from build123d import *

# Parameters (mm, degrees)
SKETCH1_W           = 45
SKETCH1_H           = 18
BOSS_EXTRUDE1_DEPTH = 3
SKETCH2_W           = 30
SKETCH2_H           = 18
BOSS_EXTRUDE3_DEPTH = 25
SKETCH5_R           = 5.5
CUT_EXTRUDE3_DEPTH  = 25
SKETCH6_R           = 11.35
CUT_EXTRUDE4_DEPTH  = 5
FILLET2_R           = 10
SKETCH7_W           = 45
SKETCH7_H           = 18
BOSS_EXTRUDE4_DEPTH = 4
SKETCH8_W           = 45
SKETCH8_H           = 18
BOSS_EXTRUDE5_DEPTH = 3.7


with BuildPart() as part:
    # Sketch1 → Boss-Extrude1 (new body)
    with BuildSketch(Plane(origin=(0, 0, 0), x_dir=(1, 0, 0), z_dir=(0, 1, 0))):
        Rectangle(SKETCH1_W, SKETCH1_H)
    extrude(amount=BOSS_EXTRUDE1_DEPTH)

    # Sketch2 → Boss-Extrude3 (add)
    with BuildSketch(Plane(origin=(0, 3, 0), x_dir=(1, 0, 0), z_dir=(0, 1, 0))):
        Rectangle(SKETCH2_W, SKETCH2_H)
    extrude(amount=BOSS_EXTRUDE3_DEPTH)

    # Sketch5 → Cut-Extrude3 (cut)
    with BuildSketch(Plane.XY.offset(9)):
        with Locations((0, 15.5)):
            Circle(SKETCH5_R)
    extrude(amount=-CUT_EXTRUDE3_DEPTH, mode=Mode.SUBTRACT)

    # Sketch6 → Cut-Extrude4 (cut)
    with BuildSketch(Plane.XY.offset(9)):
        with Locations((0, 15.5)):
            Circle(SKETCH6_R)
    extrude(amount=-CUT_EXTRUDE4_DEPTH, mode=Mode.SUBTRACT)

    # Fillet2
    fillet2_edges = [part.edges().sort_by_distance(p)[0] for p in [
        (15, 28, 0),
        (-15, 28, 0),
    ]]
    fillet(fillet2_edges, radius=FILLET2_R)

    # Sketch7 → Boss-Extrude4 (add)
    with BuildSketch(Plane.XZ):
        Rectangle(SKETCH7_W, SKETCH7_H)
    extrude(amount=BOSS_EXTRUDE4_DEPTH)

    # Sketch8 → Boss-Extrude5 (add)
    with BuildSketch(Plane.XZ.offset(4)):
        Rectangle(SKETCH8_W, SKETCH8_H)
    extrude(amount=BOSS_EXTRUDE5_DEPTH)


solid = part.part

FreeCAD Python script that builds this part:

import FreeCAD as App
import Part
import Sketcher
Q = App.Units.Quantity


def edges_at(feature, points):
    """Names of the edges that pass closest to the given points."""
    edges = feature.Shape.Edges
    near = lambda p: min(range(len(edges)), key=lambda i: edges[i].distToShape(Part.Vertex(*p))[0])
    return sorted({f"Edge{near(p) + 1}" for p in points})

doc = App.newDocument("Part")
body = doc.addObject("PartDesign::Body", "Body")

# Sketch on XZ plane
sketch1 = body.newObject("Sketcher::SketchObject", "Sketch")
sketch1.AttachmentSupport = (doc.getObject("XZ_Plane"), [""])
sketch1.MapMode = "FlatFace"
sketch1.addGeometry(Part.LineSegment(App.Vector(-22, -9, 0), App.Vector(-22, 9, 0)), False)
sketch1.addGeometry(Part.LineSegment(App.Vector(-22, 9, 0), App.Vector(22, 9, 0)), False)
sketch1.addGeometry(Part.LineSegment(App.Vector(22, 9, 0), App.Vector(22, -9, 0)), False)
sketch1.addGeometry(Part.LineSegment(App.Vector(22, -9, 0), App.Vector(-22, -9, 0)), False)
sketch1.addConstraint(Sketcher.Constraint("Coincident", 0, 2, 1, 1))
sketch1.addConstraint(Sketcher.Constraint("Coincident", 1, 2, 2, 1))
sketch1.addConstraint(Sketcher.Constraint("Coincident", 2, 2, 3, 1))
sketch1.addConstraint(Sketcher.Constraint("Coincident", 3, 2, 0, 1))
sketch1.addConstraint(Sketcher.Constraint("Vertical", 0))
sketch1.addConstraint(Sketcher.Constraint("Horizontal", 1))
sketch1.addConstraint(Sketcher.Constraint("Vertical", 2))
sketch1.addConstraint(Sketcher.Constraint("Horizontal", 3))
sketch1.addConstraint(Sketcher.Constraint("Symmetric", 0, 2, 2, 2, -1, 1))
sketch1.addConstraint(Sketcher.Constraint("DistanceX", 1, 1, 1, 2, Q("45 mm")))
sketch1.addConstraint(Sketcher.Constraint("DistanceY", 0, 1, 0, 2, Q("18 mm")))
pad1 = body.newObject("PartDesign::Pad", "Pad")
pad1.Profile = sketch1
pad1.Length = 3
pad1.Reversed = True

# Sketch on XZ plane
sketch2 = body.newObject("Sketcher::SketchObject", "Sketch001")
sketch2.AttachmentSupport = (doc.getObject("XZ_Plane"), [""])
sketch2.MapMode = "FlatFace"
sketch2.AttachmentOffset = App.Placement(App.Vector(0, 0, -3), App.Rotation())
sketch2.addGeometry(Part.LineSegment(App.Vector(-15, -9, 0), App.Vector(-15, 9, 0)), False)
sketch2.addGeometry(Part.LineSegment(App.Vector(-15, 9, 0), App.Vector(15, 9, 0)), False)
sketch2.addGeometry(Part.LineSegment(App.Vector(15, 9, 0), App.Vector(15, -9, 0)), False)
sketch2.addGeometry(Part.LineSegment(App.Vector(15, -9, 0), App.Vector(-15, -9, 0)), False)
sketch2.addConstraint(Sketcher.Constraint("Coincident", 0, 2, 1, 1))
sketch2.addConstraint(Sketcher.Constraint("Coincident", 1, 2, 2, 1))
sketch2.addConstraint(Sketcher.Constraint("Coincident", 2, 2, 3, 1))
sketch2.addConstraint(Sketcher.Constraint("Coincident", 3, 2, 0, 1))
sketch2.addConstraint(Sketcher.Constraint("Vertical", 0))
sketch2.addConstraint(Sketcher.Constraint("Horizontal", 1))
sketch2.addConstraint(Sketcher.Constraint("Vertical", 2))
sketch2.addConstraint(Sketcher.Constraint("Horizontal", 3))
sketch2.addConstraint(Sketcher.Constraint("Symmetric", 0, 2, 2, 2, -1, 1))
sketch2.addConstraint(Sketcher.Constraint("DistanceX", 1, 1, 1, 2, Q("30 mm")))
sketch2.addConstraint(Sketcher.Constraint("DistanceY", 0, 1, 0, 2, Q("18 mm")))
pad2 = body.newObject("PartDesign::Pad", "Pad001")
pad2.Profile = sketch2
pad2.Length = 25
pad2.Reversed = True

# Sketch on XY plane
sketch3 = body.newObject("Sketcher::SketchObject", "Sketch002")
sketch3.AttachmentSupport = (doc.getObject("XY_Plane"), [""])
sketch3.MapMode = "FlatFace"
sketch3.AttachmentOffset = App.Placement(App.Vector(0, 0, 9), App.Rotation())
sketch3.addGeometry(Part.Circle(App.Vector(0, 16, 0), App.Vector(0, 0, 1), 6), False)
sketch3.addConstraint(Sketcher.Constraint("PointOnObject", 0, 3, -2))
sketch3.addConstraint(Sketcher.Constraint("Diameter", 0, Q("11 mm")))
sketch3.addConstraint(Sketcher.Constraint("DistanceY", -1, 1, 0, 3, Q("15.5 mm")))
pocket1 = body.newObject("PartDesign::Pocket", "Pocket")
pocket1.Profile = sketch3
pocket1.Length = 25

# Sketch on XY plane
sketch4 = body.newObject("Sketcher::SketchObject", "Sketch003")
sketch4.AttachmentSupport = (doc.getObject("XY_Plane"), [""])
sketch4.MapMode = "FlatFace"
sketch4.AttachmentOffset = App.Placement(App.Vector(0, 0, 9), App.Rotation())
sketch4.addGeometry(Part.Circle(App.Vector(0, 16, 0), App.Vector(0, 0, 1), 11), False)
sketch4.addConstraint(Sketcher.Constraint("PointOnObject", 0, 3, -2))
sketch4.addConstraint(Sketcher.Constraint("Diameter", 0, Q("22.7 mm")))
sketch4.addConstraint(Sketcher.Constraint("DistanceY", -1, 1, 0, 3, Q("15.5 mm")))
pocket2 = body.newObject("PartDesign::Pocket", "Pocket001")
pocket2.Profile = sketch4
pocket2.Length = 5
doc.recompute()

fillet = body.newObject("PartDesign::Fillet", "Fillet")
fillet.Base = (pocket2, edges_at(pocket2, [(15, 28, 0), (-15, 28, 0)]))
fillet.Radius = 10

# Sketch on XZ plane
sketch5 = body.newObject("Sketcher::SketchObject", "Sketch004")
sketch5.AttachmentSupport = (doc.getObject("XZ_Plane"), [""])
sketch5.MapMode = "FlatFace"
sketch5.addGeometry(Part.LineSegment(App.Vector(-22, 9, 0), App.Vector(-22, -9, 0)), False)
sketch5.addGeometry(Part.LineSegment(App.Vector(-22, -9, 0), App.Vector(22, -9, 0)), False)
sketch5.addGeometry(Part.LineSegment(App.Vector(22, -9, 0), App.Vector(22, 9, 0)), False)
sketch5.addGeometry(Part.LineSegment(App.Vector(22, 9, 0), App.Vector(-22, 9, 0)), False)
sketch5.addConstraint(Sketcher.Constraint("Coincident", 0, 2, 1, 1))
sketch5.addConstraint(Sketcher.Constraint("Coincident", 1, 2, 2, 1))
sketch5.addConstraint(Sketcher.Constraint("Coincident", 2, 2, 3, 1))
sketch5.addConstraint(Sketcher.Constraint("Coincident", 3, 2, 0, 1))
sketch5.addConstraint(Sketcher.Constraint("Vertical", 0))
sketch5.addConstraint(Sketcher.Constraint("Horizontal", 1))
sketch5.addConstraint(Sketcher.Constraint("Vertical", 2))
sketch5.addConstraint(Sketcher.Constraint("Horizontal", 3))
sketch5.addConstraint(Sketcher.Constraint("Symmetric", 0, 2, 2, 2, -1, 1))
sketch5.addConstraint(Sketcher.Constraint("DistanceX", 1, 1, 1, 2, Q("45 mm")))
sketch5.addConstraint(Sketcher.Constraint("DistanceY", 0, 2, 0, 1, Q("18 mm")))
pad3 = body.newObject("PartDesign::Pad", "Pad002")
pad3.Profile = sketch5
pad3.Length = 4

# Sketch on XZ plane
sketch6 = body.newObject("Sketcher::SketchObject", "Sketch005")
sketch6.AttachmentSupport = (doc.getObject("XZ_Plane"), [""])
sketch6.MapMode = "FlatFace"
sketch6.AttachmentOffset = App.Placement(App.Vector(0, 0, 4), App.Rotation())
sketch6.addGeometry(Part.LineSegment(App.Vector(-22, 9, 0), App.Vector(-22, -9, 0)), False)
sketch6.addGeometry(Part.LineSegment(App.Vector(-22, -9, 0), App.Vector(22, -9, 0)), False)
sketch6.addGeometry(Part.LineSegment(App.Vector(22, -9, 0), App.Vector(22, 9, 0)), False)
sketch6.addGeometry(Part.LineSegment(App.Vector(22, 9, 0), App.Vector(-22, 9, 0)), False)
sketch6.addConstraint(Sketcher.Constraint("Coincident", 0, 2, 1, 1))
sketch6.addConstraint(Sketcher.Constraint("Coincident", 1, 2, 2, 1))
sketch6.addConstraint(Sketcher.Constraint("Coincident", 2, 2, 3, 1))
sketch6.addConstraint(Sketcher.Constraint("Coincident", 3, 2, 0, 1))
sketch6.addConstraint(Sketcher.Constraint("Vertical", 0))
sketch6.addConstraint(Sketcher.Constraint("Horizontal", 1))
sketch6.addConstraint(Sketcher.Constraint("Vertical", 2))
sketch6.addConstraint(Sketcher.Constraint("Horizontal", 3))
sketch6.addConstraint(Sketcher.Constraint("Symmetric", 0, 2, 2, 2, -1, 1))
sketch6.addConstraint(Sketcher.Constraint("DistanceX", 1, 1, 1, 2, Q("45 mm")))
sketch6.addConstraint(Sketcher.Constraint("DistanceY", 0, 2, 0, 1, Q("18 mm")))
pad4 = body.newObject("PartDesign::Pad", "Pad003")
pad4.Profile = sketch6
pad4.Length = 3.7

doc.recompute()
